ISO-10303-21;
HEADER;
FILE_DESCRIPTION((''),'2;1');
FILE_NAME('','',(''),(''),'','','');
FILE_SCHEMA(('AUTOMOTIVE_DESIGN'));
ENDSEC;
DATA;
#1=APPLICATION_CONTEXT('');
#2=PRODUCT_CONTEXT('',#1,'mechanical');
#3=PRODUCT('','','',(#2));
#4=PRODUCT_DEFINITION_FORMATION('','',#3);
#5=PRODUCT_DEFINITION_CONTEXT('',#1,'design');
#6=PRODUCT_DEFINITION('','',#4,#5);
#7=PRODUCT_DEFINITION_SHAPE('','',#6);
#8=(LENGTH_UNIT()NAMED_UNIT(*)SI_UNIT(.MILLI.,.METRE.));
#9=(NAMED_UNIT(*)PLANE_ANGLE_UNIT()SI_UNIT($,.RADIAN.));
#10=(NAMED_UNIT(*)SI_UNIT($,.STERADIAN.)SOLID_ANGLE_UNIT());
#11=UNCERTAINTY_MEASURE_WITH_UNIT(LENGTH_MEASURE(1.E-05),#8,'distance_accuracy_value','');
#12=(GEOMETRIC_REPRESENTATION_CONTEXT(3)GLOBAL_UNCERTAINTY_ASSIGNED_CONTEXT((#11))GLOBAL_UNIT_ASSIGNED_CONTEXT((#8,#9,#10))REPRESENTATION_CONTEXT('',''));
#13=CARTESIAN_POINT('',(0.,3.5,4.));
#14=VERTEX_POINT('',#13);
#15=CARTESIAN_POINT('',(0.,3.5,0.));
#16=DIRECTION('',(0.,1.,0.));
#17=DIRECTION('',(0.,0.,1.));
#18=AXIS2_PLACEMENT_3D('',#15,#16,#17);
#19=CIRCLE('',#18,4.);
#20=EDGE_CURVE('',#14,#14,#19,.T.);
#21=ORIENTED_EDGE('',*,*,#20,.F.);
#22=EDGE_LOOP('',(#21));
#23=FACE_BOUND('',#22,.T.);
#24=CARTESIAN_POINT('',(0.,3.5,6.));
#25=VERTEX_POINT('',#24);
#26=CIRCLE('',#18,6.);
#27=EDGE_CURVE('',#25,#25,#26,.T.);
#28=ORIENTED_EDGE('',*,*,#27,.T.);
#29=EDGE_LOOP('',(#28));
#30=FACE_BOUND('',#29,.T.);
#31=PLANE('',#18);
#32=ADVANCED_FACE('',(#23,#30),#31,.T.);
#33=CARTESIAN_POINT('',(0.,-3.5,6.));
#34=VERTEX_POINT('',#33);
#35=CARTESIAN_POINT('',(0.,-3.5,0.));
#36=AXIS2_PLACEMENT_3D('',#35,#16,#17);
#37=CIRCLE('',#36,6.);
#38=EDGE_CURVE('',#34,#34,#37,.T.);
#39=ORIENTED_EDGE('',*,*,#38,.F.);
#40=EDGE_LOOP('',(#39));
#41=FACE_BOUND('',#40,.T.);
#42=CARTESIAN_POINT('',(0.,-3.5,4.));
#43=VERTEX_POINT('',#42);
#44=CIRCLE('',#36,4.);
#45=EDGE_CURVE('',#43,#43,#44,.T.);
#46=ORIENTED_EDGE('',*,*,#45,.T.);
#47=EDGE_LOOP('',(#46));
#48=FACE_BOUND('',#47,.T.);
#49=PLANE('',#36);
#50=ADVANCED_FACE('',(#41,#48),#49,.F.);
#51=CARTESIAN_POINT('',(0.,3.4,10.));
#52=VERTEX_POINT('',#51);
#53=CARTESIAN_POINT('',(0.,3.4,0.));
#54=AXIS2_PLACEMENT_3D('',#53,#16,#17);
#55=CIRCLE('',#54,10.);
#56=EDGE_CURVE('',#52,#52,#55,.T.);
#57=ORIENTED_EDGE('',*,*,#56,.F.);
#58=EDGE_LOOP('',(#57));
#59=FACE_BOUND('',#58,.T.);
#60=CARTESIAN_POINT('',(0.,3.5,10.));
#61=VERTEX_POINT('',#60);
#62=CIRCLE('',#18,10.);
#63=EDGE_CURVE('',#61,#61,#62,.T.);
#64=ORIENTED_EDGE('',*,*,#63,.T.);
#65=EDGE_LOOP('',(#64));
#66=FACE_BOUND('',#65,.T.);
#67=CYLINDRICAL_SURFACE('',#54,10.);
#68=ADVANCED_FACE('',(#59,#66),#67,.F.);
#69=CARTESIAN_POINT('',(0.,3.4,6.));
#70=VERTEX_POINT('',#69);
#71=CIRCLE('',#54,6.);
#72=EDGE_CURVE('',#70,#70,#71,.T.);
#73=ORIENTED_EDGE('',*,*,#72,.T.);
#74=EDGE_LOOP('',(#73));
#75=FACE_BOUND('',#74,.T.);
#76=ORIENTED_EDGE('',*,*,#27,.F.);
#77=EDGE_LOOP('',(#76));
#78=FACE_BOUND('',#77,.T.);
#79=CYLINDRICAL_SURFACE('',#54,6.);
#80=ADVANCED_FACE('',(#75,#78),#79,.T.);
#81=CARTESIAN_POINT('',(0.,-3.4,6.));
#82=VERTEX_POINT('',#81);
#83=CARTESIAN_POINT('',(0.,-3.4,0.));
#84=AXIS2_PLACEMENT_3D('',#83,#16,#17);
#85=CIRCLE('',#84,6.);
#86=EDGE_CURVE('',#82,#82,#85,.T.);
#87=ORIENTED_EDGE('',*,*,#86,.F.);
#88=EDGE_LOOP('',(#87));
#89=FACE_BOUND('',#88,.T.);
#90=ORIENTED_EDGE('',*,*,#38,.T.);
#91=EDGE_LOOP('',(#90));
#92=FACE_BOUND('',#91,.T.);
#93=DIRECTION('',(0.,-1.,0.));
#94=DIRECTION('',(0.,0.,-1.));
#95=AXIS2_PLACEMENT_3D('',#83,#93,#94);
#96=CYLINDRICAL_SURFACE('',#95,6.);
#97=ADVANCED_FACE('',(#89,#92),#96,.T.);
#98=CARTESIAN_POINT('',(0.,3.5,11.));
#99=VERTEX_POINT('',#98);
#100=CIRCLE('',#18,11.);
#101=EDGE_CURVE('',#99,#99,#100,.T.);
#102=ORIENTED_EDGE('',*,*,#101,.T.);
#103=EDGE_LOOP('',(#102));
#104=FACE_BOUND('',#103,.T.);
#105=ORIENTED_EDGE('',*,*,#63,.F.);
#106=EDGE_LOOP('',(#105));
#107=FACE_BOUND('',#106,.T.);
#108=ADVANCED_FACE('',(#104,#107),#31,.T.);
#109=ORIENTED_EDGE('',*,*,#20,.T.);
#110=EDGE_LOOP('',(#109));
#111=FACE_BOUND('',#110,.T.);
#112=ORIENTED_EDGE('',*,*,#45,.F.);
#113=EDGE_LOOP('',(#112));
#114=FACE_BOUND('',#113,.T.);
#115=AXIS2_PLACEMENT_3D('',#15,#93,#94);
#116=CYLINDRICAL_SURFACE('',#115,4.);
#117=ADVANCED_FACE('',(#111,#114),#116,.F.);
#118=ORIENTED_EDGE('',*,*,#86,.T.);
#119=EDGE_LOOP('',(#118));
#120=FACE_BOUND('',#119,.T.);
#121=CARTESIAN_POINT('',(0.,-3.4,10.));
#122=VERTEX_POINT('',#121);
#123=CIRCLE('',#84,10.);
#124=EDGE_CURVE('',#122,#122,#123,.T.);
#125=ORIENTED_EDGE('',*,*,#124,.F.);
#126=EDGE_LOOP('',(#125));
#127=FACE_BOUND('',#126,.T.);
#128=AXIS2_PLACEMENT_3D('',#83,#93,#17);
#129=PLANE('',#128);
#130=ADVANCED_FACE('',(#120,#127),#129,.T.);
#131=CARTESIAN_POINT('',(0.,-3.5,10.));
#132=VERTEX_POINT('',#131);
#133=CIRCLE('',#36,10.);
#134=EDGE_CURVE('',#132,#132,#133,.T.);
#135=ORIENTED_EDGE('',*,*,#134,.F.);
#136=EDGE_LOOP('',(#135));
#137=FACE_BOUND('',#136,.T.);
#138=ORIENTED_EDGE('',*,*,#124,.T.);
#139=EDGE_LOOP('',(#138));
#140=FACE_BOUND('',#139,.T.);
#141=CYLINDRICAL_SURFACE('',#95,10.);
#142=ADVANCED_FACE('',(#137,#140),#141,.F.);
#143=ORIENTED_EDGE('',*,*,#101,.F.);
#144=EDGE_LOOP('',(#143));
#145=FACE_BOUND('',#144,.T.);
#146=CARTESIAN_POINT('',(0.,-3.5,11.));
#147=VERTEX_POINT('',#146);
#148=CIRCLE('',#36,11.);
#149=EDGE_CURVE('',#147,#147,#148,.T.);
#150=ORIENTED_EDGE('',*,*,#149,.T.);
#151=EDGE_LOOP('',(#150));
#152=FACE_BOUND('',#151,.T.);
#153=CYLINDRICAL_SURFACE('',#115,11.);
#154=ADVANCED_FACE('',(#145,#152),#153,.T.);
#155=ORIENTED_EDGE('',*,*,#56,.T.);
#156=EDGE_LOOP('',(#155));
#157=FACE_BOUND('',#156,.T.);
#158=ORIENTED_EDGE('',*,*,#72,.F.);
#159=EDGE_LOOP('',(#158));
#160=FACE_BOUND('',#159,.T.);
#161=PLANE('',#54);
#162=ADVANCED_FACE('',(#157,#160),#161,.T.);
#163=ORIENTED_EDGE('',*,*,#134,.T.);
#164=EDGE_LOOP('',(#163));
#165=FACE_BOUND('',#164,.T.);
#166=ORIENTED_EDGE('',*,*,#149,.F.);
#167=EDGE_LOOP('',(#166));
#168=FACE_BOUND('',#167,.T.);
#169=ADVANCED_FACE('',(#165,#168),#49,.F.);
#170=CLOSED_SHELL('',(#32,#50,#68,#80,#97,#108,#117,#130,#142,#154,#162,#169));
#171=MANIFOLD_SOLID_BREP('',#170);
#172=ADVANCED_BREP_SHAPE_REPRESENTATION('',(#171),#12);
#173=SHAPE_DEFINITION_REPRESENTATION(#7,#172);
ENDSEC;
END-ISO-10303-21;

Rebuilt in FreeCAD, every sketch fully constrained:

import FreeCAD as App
import Part
import Sketcher

doc = App.newDocument("Part")
body = doc.addObject("PartDesign::Body", "Body")

sketch1 = body.newObject("Sketcher::SketchObject", "Sketch")
sketch1.AttachmentSupport = (doc.getObject("XZ_Plane"), [""])
sketch1.MapMode = "FlatFace"
sketch1.addGeometry([
    Part.Circle(App.Vector(0, 0, 0), App.Vector(0, 0, 1), 11),
    Part.Circle(App.Vector(0, 0, 0), App.Vector(0, 0, 1), 4),
], False)
sketch1.addConstraint([
    Sketcher.Constraint("Coincident", 0, 3, -1, 1),
    Sketcher.Constraint("Coincident", 1, 3, -1, 1),
    Sketcher.Constraint("Diameter", 0, 22.0),
    Sketcher.Constraint("Diameter", 1, 8.0),
])
pad1 = body.newObject("PartDesign::Pad", "Pad")
pad1.Profile = sketch1
pad1.Length = 7
pad1.Midplane = True

sketch2 = body.newObject("Sketcher::SketchObject", "Sketch001")
sketch2.AttachmentSupport = (doc.getObject("XZ_Plane"), [""])
sketch2.MapMode = "FlatFace"
sketch2.AttachmentOffset = App.Placement(App.Vector(0, 0, -3.5), App.Rotation())
sketch2.addGeometry([
    Part.Circle(App.Vector(0, 0, 0), App.Vector(0, 0, 1), 10),
    Part.Circle(App.Vector(0, 0, 0), App.Vector(0, 0, 1), 6),
], False)
sketch2.addConstraint([
    Sketcher.Constraint("Coincident", 0, 3, -1, 1),
    Sketcher.Constraint("Coincident", 1, 3, -1, 1),
    Sketcher.Constraint("Diameter", 0, 20.0),
    Sketcher.Constraint("Diameter", 1, 12.0),
])
pocket1 = body.newObject("PartDesign::Pocket", "Pocket")
pocket1.Profile = sketch2
pocket1.Length = 0.1
pocket1.Reversed = True
doc.recompute()

mirrored = body.newObject("PartDesign::Mirrored", "Mirrored")
mirrored.Originals = [pocket1]
mirrored.MirrorPlane = (doc.getObject("XZ_Plane"), [""])
body.Tip = mirrored

doc.recompute()
